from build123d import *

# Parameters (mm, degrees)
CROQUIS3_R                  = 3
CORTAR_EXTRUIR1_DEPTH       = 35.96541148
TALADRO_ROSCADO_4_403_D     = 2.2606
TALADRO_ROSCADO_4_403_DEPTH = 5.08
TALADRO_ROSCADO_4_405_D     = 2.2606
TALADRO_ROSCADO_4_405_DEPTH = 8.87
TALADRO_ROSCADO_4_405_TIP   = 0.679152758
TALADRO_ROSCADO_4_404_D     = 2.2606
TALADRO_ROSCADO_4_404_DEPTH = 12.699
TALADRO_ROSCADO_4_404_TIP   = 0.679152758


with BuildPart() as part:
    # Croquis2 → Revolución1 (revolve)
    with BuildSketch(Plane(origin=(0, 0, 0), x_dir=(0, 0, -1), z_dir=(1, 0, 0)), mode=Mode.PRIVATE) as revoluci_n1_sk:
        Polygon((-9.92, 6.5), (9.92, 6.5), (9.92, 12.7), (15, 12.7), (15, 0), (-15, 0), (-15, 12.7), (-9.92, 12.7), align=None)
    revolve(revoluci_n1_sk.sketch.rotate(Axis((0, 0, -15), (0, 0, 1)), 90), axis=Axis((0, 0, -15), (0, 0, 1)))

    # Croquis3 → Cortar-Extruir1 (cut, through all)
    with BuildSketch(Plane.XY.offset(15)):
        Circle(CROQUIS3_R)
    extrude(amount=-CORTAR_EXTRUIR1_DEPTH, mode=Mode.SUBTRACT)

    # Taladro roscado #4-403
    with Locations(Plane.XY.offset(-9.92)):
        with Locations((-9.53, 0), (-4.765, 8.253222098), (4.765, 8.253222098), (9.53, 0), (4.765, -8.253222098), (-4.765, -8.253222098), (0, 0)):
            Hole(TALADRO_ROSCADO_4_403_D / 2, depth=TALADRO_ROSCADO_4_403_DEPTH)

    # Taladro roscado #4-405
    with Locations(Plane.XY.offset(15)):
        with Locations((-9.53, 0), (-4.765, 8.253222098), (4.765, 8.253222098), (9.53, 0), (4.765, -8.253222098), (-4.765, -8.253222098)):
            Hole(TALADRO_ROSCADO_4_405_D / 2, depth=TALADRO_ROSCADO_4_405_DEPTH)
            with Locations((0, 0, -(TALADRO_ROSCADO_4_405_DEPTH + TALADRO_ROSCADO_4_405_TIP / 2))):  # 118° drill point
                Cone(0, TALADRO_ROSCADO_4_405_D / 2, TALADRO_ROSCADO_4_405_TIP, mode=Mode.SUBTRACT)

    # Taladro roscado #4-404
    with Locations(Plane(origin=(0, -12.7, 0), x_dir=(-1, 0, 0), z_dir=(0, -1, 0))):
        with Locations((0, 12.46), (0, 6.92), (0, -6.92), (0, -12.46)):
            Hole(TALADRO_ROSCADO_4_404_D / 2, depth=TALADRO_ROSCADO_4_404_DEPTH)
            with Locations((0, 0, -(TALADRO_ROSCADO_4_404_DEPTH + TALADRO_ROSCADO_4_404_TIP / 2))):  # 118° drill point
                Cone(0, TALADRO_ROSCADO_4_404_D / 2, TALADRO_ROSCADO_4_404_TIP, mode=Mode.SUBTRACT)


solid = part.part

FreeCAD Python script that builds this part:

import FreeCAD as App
import Part
import Sketcher
from FreeCAD import Vector
Q = App.Units.Quantity

doc = App.newDocument("Part")
body = doc.addObject("PartDesign::Body", "Body")

sketch1 = body.newObject("Sketcher::SketchObject", "Sketch")
sketch1.AttachmentSupport = (doc.getObject("YZ_Plane"), [""])
sketch1.MapMode = "FlatFace"
sketch1.addGeometry(Part.LineSegment(Vector(6, -10, 0), Vector(6, 10, 0)), False)
sketch1.addGeometry(Part.LineSegment(Vector(6, 10, 0), Vector(13, 10, 0)), False)
sketch1.addGeometry(Part.LineSegment(Vector(13, 10, 0), Vector(13, 15, 0)), False)
sketch1.addGeometry(Part.LineSegment(Vector(13, 15, 0), Vector(0, 15, 0)), False)
sketch1.addGeometry(Part.LineSegment(Vector(0, 15, 0), Vector(0, -15, 0)), False)
sketch1.addGeometry(Part.LineSegment(Vector(0, -15, 0), Vector(13, -15, 0)), False)
sketch1.addGeometry(Part.LineSegment(Vector(13, -15, 0), Vector(13, -10, 0)), False)
sketch1.addGeometry(Part.LineSegment(Vector(13, -10, 0), Vector(6, -10, 0)), False)
sketch1.addConstraint(Sketcher.Constraint("Coincident", 0, 2, 1, 1))
sketch1.addConstraint(Sketcher.Constraint("Coincident", 1, 2, 2, 1))
sketch1.addConstraint(Sketcher.Constraint("Coincident", 2, 2, 3, 1))
sketch1.addConstraint(Sketcher.Constraint("Coincident", 3, 2, 4, 1))
sketch1.addConstraint(Sketcher.Constraint("Coincident", 4, 2, 5, 1))
sketch1.addConstraint(Sketcher.Constraint("Coincident", 5, 2, 6, 1))
sketch1.addConstraint(Sketcher.Constraint("Coincident", 6, 2, 7, 1))
sketch1.addConstraint(Sketcher.Constraint("Coincident", 7, 2, 0, 1))
sketch1.addConstraint(Sketcher.Constraint("Vertical", 0))
sketch1.addConstraint(Sketcher.Constraint("Horizontal", 1))
sketch1.addConstraint(Sketcher.Constraint("Vertical", 2))
sketch1.addConstraint(Sketcher.Constraint("Horizontal", 3))
sketch1.addConstraint(Sketcher.Constraint("Vertical", 4))
sketch1.addConstraint(Sketcher.Constraint("Horizontal", 5))
sketch1.addConstraint(Sketcher.Constraint("Vertical", 6))
sketch1.addConstraint(Sketcher.Constraint("Horizontal", 7))
sketch1.addConstraint(Sketcher.Constraint("Symmetric", 3, 2, 4, 2, -1, 1))
sketch1.addConstraint(Sketcher.Constraint("Symmetric", 1, 2, 6, 2, -1))
sketch1.addConstraint(Sketcher.Constraint("DistanceY", 4, 2, 4, 1, Q("30 mm")))
sketch1.addConstraint(Sketcher.Constraint("DistanceX", 1, 1, 1, 2, Q("6.2 mm")))
sketch1.addConstraint(Sketcher.Constraint("DistanceX", 3, 2, 3, 1, Q("12.7 mm")))
sketch1.addConstraint(Sketcher.Constraint("DistanceY", 0, 1, 0, 2, Q("19.84 mm")))
revolution = body.newObject("PartDesign::Revolution", "Revolution")
revolution.Profile = sketch1
revolution.ReferenceAxis = (sketch1, ["V_Axis"])
revolution.Angle = 360

sketch2 = body.newObject("Sketcher::SketchObject", "Sketch001")
sketch2.AttachmentSupport = (doc.getObject("XY_Plane"), [""])
sketch2.MapMode = "FlatFace"
sketch2.AttachmentOffset = App.Placement(Vector(0, 0, 15), App.Rotation())
sketch2.addGeometry(Part.Circle(Vector(0, 0, 0), Vector(0, 0, 1), 3), False)
sketch2.addConstraint(Sketcher.Constraint("Coincident", 0, 3, -1, 1))
sketch2.addConstraint(Sketcher.Constraint("Diameter", 0, Q("6 mm")))
pocket1 = body.newObject("PartDesign::Pocket", "Pocket")
pocket1.Profile = sketch2
pocket1.Type = "ThroughAll"

sketch3 = body.newObject("Sketcher::SketchObject", "Sketch002")
sketch3.AttachmentSupport = (doc.getObject("XY_Plane"), [""])
sketch3.MapMode = "FlatFace"
sketch3.AttachmentOffset = App.Placement(Vector(0, 0, -9.92), App.Rotation())
sketch3.addGeometry(Part.Circle(Vector(-9.5, 0, 0), Vector(0, 0, 1), 1.1), False)
sketch3.addGeometry(Part.Circle(Vector(-4.8, 8.3, 0), Vector(0, 0, 1), 1.1), False)
sketch3.addGeometry(Part.Circle(Vector(4.8, 8.3, 0), Vector(0, 0, 1), 1.1), False)
sketch3.addGeometry(Part.Circle(Vector(9.5, 0, 0), Vector(0, 0, 1), 1.1), False)
sketch3.addGeometry(Part.Circle(Vector(4.8, -8.3, 0), Vector(0, 0, 1), 1.1), False)
sketch3.addGeometry(Part.Circle(Vector(-4.8, -8.3, 0), Vector(0, 0, 1), 1.1), False)
sketch3.addGeometry(Part.Circle(Vector(0, 0, 0), Vector(0, 0, 1), 1.1), False)
sketch3.addConstraint(Sketcher.Constraint("Coincident", 6, 3, -1, 1))
sketch3.addConstraint(Sketcher.Constraint("Equal", 0, 1))
sketch3.addConstraint(Sketcher.Constraint("Equal", 1, 2))
sketch3.addConstraint(Sketcher.Constraint("Equal", 2, 3))
sketch3.addConstraint(Sketcher.Constraint("Equal", 3, 4))
sketch3.addConstraint(Sketcher.Constraint("Equal", 4, 5))
sketch3.addConstraint(Sketcher.Constraint("Equal", 5, 6))
sketch3.addConstraint(Sketcher.Constraint("Symmetric", 0, 3, 3, 3, -1, 1))
sketch3.addConstraint(Sketcher.Constraint("Symmetric", 1, 3, 4, 3, -1, 1))
sketch3.addConstraint(Sketcher.Constraint("Symmetric", 2, 3, 5, 3, -1, 1))
sketch3.addConstraint(Sketcher.Constraint("Symmetric", 1, 3, 2, 3, -2))
sketch3.addConstraint(Sketcher.Constraint("PointOnObject", 0, 3, -1))
sketch3.addConstraint(Sketcher.Constraint("Diameter", 0, Q("2.2606 mm")))
sketch3.addConstraint(Sketcher.Constraint("DistanceX", 0, 3, -1, 1, Q("9.53 mm")))
sketch3.addConstraint(Sketcher.Constraint("DistanceX", 1, 3, 2, 3, Q("9.53 mm")))
sketch3.addConstraint(Sketcher.Constraint("DistanceY", -1, 1, 1, 3, Q("8.253222 mm")))
doc.recompute()
hole = body.newObject("PartDesign::Hole", "Hole")
hole.Profile = sketch3
hole.ThreadType = "None"
hole.Diameter = 2.2606
hole.DepthType = "Dimension"
hole.Depth = 5.08
hole.DrillPoint = "Flat"

sketch4 = body.newObject("Sketcher::SketchObject", "Sketch003")
sketch4.AttachmentSupport = (doc.getObject("XY_Plane"), [""])
sketch4.MapMode = "FlatFace"
sketch4.AttachmentOffset = App.Placement(Vector(0, 0, 15), App.Rotation())
sketch4.addGeometry(Part.Circle(Vector(-9.5, 0, 0), Vector(0, 0, 1), 1.1), False)
sketch4.addGeometry(Part.Circle(Vector(-4.8, 8.3, 0), Vector(0, 0, 1), 1.1), False)
sketch4.addGeometry(Part.Circle(Vector(4.8, 8.3, 0), Vector(0, 0, 1), 1.1), False)
sketch4.addGeometry(Part.Circle(Vector(9.5, 0, 0), Vector(0, 0, 1), 1.1), False)
sketch4.addGeometry(Part.Circle(Vector(4.8, -8.3, 0), Vector(0, 0, 1), 1.1), False)
sketch4.addGeometry(Part.Circle(Vector(-4.8, -8.3, 0), Vector(0, 0, 1), 1.1), False)
sketch4.addConstraint(Sketcher.Constraint("Equal", 0, 1))
sketch4.addConstraint(Sketcher.Constraint("Equal", 1, 2))
sketch4.addConstraint(Sketcher.Constraint("Equal", 2, 3))
sketch4.addConstraint(Sketcher.Constraint("Equal", 3, 4))
sketch4.addConstraint(Sketcher.Constraint("Equal", 4, 5))
sketch4.addConstraint(Sketcher.Constraint("Symmetric", 0, 3, 3, 3, -1, 1))
sketch4.addConstraint(Sketcher.Constraint("Symmetric", 1, 3, 4, 3, -1, 1))
sketch4.addConstraint(Sketcher.Constraint("Symmetric", 2, 3, 5, 3, -1, 1))
sketch4.addConstraint(Sketcher.Constraint("Symmetric", 1, 3, 2, 3, -2))
sketch4.addConstraint(Sketcher.Constraint("PointOnObject", 0, 3, -1))
sketch4.addConstraint(Sketcher.Constraint("Diameter", 0, Q("2.2606 mm")))
sketch4.addConstraint(Sketcher.Constraint("DistanceX", 0, 3, -1, 1, Q("9.53 mm")))
sketch4.addConstraint(Sketcher.Constraint("DistanceX", 1, 3, 2, 3, Q("9.53 mm")))
sketch4.addConstraint(Sketcher.Constraint("DistanceY", -1, 1, 1, 3, Q("8.253222 mm")))
doc.recompute()
hole2 = body.newObject("PartDesign::Hole", "Hole001")
hole2.Profile = sketch4
hole2.ThreadType = "None"
hole2.Diameter = 2.2606
hole2.DepthType = "Dimension"
hole2.Depth = 8.87
hole2.DrillPoint = "Angled"
hole2.DrillPointAngle = 118

sketch5 = body.newObject("Sketcher::SketchObject", "Sketch004")
sketch5.AttachmentSupport = (doc.getObject("XZ_Plane"), [""])
sketch5.MapMode = "FlatFace"
sketch5.AttachmentOffset = App.Placement(Vector(0, 0, 12.7), App.Rotation())
sketch5.addGeometry(Part.Circle(Vector(0, -12.5, 0), Vector(0, 0, 1), 1.1), False)
sketch5.addGeometry(Part.Circle(Vector(0, -6.9, 0), Vector(0, 0, 1), 1.1), False)
sketch5.addGeometry(Part.Circle(Vector(0, 6.9, 0), Vector(0, 0, 1), 1.1), False)
sketch5.addGeometry(Part.Circle(Vector(0, 12.5, 0), Vector(0, 0, 1), 1.1), False)
sketch5.addConstraint(Sketcher.Constraint("Equal", 0, 1))
sketch5.addConstraint(Sketcher.Constraint("Equal", 1, 2))
sketch5.addConstraint(Sketcher.Constraint("Equal", 2, 3))
sketch5.addConstraint(Sketcher.Constraint("Symmetric", 1, 3, 2, 3, -1, 1))
sketch5.addConstraint(Sketcher.Constraint("Symmetric", 0, 3, 3, 3, -1, 1))
sketch5.addConstraint(Sketcher.Constraint("PointOnObject", 0, 3, -2))
sketch5.addConstraint(Sketcher.Constraint("PointOnObject", 1, 3, -2))
sketch5.addConstraint(Sketcher.Constraint("Diameter", 0, Q("2.2606 mm")))
sketch5.addConstraint(Sketcher.Constraint("DistanceY", 0, 3, -1, 1, Q("12.46 mm")))
sketch5.addConstraint(Sketcher.Constraint("DistanceY", 1, 3, -1, 1, Q("6.92 mm")))
doc.recompute()
hole3 = body.newObject("PartDesign::Hole", "Hole002")
hole3.Profile = sketch5
hole3.ThreadType = "None"
hole3.Diameter = 2.2606
hole3.DepthType = "Dimension"
hole3.Depth = 12.699
hole3.DrillPoint = "Angled"
hole3.DrillPointAngle = 118

doc.recompute()
